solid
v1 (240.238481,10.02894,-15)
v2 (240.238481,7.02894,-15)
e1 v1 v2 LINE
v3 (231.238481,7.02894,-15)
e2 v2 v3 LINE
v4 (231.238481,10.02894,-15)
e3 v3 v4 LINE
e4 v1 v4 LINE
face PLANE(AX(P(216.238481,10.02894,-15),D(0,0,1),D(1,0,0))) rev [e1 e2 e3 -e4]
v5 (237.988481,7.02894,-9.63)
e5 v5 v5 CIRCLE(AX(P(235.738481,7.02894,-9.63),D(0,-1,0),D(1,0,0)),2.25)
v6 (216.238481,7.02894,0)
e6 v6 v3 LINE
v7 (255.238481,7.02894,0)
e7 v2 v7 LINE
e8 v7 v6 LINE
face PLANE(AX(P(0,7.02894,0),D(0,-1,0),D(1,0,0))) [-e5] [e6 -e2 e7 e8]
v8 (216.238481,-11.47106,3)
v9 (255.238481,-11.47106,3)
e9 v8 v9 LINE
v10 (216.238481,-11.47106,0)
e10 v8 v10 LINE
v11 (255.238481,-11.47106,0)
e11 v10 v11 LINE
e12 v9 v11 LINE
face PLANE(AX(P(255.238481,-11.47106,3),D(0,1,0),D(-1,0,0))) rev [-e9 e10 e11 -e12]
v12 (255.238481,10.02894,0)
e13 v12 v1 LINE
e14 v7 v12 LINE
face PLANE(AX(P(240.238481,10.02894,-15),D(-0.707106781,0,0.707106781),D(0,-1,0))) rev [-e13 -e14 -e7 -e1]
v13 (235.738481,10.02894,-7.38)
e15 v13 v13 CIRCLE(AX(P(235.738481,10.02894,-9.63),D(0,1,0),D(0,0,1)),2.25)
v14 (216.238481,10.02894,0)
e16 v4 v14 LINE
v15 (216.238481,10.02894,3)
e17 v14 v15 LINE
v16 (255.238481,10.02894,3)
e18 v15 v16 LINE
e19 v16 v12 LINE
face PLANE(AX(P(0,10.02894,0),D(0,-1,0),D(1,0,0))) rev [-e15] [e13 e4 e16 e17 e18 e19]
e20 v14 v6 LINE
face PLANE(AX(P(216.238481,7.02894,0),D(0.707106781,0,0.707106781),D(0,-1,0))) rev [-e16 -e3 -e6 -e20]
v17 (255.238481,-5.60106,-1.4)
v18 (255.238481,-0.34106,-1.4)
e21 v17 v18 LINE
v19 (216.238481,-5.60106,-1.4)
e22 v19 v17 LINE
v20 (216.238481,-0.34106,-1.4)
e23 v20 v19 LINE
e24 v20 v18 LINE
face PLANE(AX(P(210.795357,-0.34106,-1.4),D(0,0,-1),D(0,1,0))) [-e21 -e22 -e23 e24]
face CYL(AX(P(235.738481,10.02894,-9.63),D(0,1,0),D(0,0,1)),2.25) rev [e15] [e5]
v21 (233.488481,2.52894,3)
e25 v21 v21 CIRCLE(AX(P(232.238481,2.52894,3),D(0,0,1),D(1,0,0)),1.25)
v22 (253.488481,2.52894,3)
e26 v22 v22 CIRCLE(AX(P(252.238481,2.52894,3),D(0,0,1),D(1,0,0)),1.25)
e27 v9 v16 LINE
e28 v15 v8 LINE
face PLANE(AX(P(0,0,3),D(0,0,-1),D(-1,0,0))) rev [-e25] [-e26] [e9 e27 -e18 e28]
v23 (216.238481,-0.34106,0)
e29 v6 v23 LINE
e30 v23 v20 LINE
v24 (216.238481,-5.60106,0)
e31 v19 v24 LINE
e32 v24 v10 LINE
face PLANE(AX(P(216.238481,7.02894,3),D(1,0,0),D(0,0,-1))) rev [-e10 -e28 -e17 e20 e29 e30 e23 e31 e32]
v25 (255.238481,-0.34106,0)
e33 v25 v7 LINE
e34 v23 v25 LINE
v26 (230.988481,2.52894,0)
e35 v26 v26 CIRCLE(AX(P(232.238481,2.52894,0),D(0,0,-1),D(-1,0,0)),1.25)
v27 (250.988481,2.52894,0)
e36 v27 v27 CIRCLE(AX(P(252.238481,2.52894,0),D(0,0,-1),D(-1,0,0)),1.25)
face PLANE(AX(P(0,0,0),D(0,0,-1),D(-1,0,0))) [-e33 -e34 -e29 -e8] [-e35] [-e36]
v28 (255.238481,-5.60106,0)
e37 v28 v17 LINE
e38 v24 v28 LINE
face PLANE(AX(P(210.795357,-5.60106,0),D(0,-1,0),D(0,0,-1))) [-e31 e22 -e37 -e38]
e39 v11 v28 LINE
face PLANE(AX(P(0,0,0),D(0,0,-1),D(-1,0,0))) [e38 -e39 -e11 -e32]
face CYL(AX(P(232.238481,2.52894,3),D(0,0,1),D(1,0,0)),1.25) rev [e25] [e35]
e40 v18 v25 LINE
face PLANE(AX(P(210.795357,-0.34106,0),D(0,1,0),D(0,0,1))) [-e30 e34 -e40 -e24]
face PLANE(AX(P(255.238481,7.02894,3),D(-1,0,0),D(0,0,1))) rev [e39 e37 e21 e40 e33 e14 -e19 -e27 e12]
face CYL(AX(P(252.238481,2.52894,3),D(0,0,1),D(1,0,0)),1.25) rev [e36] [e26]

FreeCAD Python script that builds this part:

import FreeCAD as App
import Part
import Sketcher


def edges_at(feature, points):
    """Names of the edges that pass closest to the given points."""
    edges = feature.Shape.Edges
    near = lambda p: min(range(len(edges)), key=lambda i: edges[i].distToShape(Part.Vertex(*p))[0])
    return sorted({f"Edge{near(p) + 1}" for p in points})

doc = App.newDocument("Part")
body = doc.addObject("PartDesign::Body", "Body")

sketch1 = body.newObject("Sketcher::SketchObject", "Sketch")
sketch1.AttachmentSupport = (doc.getObject("XY_Plane"), [""])
sketch1.MapMode = "FlatFace"
sketch1.addGeometry([
    Part.LineSegment(App.Vector(216, 7, 0), App.Vector(216, -11, 0)),
    Part.LineSegment(App.Vector(216, -11, 0), App.Vector(255, -11, 0)),
    Part.LineSegment(App.Vector(255, -11, 0), App.Vector(255, 7, 0)),
    Part.LineSegment(App.Vector(255, 7, 0), App.Vector(216, 7, 0)),
], False)
sketch1.addConstraint([
    Sketcher.Constraint("Coincident", 0, 2, 1, 1),
    Sketcher.Constraint("Coincident", 1, 2, 2, 1),
    Sketcher.Constraint("Coincident", 2, 2, 3, 1),
    Sketcher.Constraint("Coincident", 3, 2, 0, 1),
    Sketcher.Constraint("Vertical", 0),
    Sketcher.Constraint("Horizontal", 1),
    Sketcher.Constraint("Vertical", 2),
    Sketcher.Constraint("Horizontal", 3),
    Sketcher.Constraint("DistanceX", 1, 1, 1, 2, 39.0),
    Sketcher.Constraint("DistanceY", 0, 2, 0, 1, 18.5),
    Sketcher.Constraint("DistanceX", -1, 1, 0, 2, 216.238481),
    Sketcher.Constraint("DistanceY", 0, 2, -1, 1, 11.47106),
])
pad1 = body.newObject("PartDesign::Pad", "Pad")
pad1.Profile = sketch1
pad1.Length = 3

sketch2 = body.newObject("Sketcher::SketchObject", "Sketch001")
sketch2.AttachmentSupport = (doc.getObject("YZ_Plane"), [""])
sketch2.MapMode = "FlatFace"
sketch2.AttachmentOffset = App.Placement(App.Vector(0, 0, 255.238481), App.Rotation())
sketch2.addGeometry([
    Part.LineSegment(App.Vector(-0.3, 0, 0), App.Vector(-5.6, 0, 0)),
    Part.LineSegment(App.Vector(-5.6, 0, 0), App.Vector(-5.6, -1.4, 0)),
    Part.LineSegment(App.Vector(-5.6, -1.4, 0), App.Vector(-0.3, -1.4, 0)),
    Part.LineSegment(App.Vector(-0.3, -1.4, 0), App.Vector(-0.3, 0, 0)),
], False)
sketch2.addConstraint([
    Sketcher.Constraint("Coincident", 0, 2, 1, 1),
    Sketcher.Constraint("Coincident", 1, 2, 2, 1),
    Sketcher.Constraint("Coincident", 2, 2, 3, 1),
    Sketcher.Constraint("Coincident", 3, 2, 0, 1),
    Sketcher.Constraint("Horizontal", 0),
    Sketcher.Constraint("Vertical", 1),
    Sketcher.Constraint("Horizontal", 2),
    Sketcher.Constraint("Vertical", 3),
    Sketcher.Constraint("PointOnObject", 0, 2, -1),
    Sketcher.Constraint("DistanceY", 1, 2, 1, 1, 1.4),
    Sketcher.Constraint("DistanceX", 0, 2, 0, 1, 5.26),
    Sketcher.Constraint("DistanceX", 0, 2, -1, 1, 5.60106),
])
pad2 = body.newObject("PartDesign::Pad", "Pad001")
pad2.Profile = sketch2
pad2.Length = 39
pad2.Reversed = True

sketch3 = body.newObject("Sketcher::SketchObject", "Sketch002")
sketch3.AttachmentSupport = (doc.getObject("XY_Plane"), [""])
sketch3.MapMode = "FlatFace"
sketch3.AttachmentOffset = App.Placement(App.Vector(0, 0, 3), App.Rotation())
sketch3.addGeometry([
    Part.Circle(App.Vector(232.2, 2.5, 0), App.Vector(0, 0, 1), 1.2),
    Part.Circle(App.Vector(252.2, 2.5, 0), App.Vector(0, 0, 1), 1.2),
], False)
sketch3.addConstraint([
    Sketcher.Constraint("Equal", 0, 1),
    Sketcher.Constraint("Horizontal", 0, 3, 1, 3),
    Sketcher.Constraint("Diameter", 0, 2.5),
    Sketcher.Constraint("DistanceX", 0, 3, 1, 3, 20.0),
    Sketcher.Constraint("DistanceX", -1, 1, 0, 3, 232.238481),
    Sketcher.Constraint("DistanceY", -1, 1, 0, 3, 2.52894),
])
doc.recompute()
hole = body.newObject("PartDesign::Hole", "Hole")
hole.Profile = sketch3
hole.ThreadType = "None"
hole.Diameter = 2.5
hole.DepthType = "Dimension"
hole.Depth = 16
hole.DrillPoint = "Flat"

sketch4 = body.newObject("Sketcher::SketchObject", "Sketch003")
sketch4.AttachmentSupport = (doc.getObject("XZ_Plane"), [""])
sketch4.MapMode = "FlatFace"
sketch4.AttachmentOffset = App.Placement(App.Vector(0, 0, -7.02894), App.Rotation())
sketch4.addGeometry([
    Part.LineSegment(App.Vector(216, -15, 0), App.Vector(216, 3, 0)),
    Part.LineSegment(App.Vector(216, 3, 0), App.Vector(255, 3, 0)),
    Part.LineSegment(App.Vector(255, 3, 0), App.Vector(255, -15, 0)),
    Part.LineSegment(App.Vector(255, -15, 0), App.Vector(216, -15, 0)),
], False)
sketch4.addConstraint([
    Sketcher.Constraint("Coincident", 0, 2, 1, 1),
    Sketcher.Constraint("Coincident", 1, 2, 2, 1),
    Sketcher.Constraint("Coincident", 2, 2, 3, 1),
    Sketcher.Constraint("Coincident", 3, 2, 0, 1),
    Sketcher.Constraint("Vertical", 0),
    Sketcher.Constraint("Horizontal", 1),
    Sketcher.Constraint("Vertical", 2),
    Sketcher.Constraint("Horizontal", 3),
    Sketcher.Constraint("DistanceX", 1, 1, 1, 2, 39.0),
    Sketcher.Constraint("DistanceY", 0, 1, 0, 2, 18.0),
    Sketcher.Constraint("DistanceY", -1, 1, 0, 2, 3.0),
    Sketcher.Constraint("DistanceX", -1, 1, 0, 2, 216.238481),
])
pad3 = body.newObject("PartDesign::Pad", "Pad002")
pad3.Profile = sketch4
pad3.Length = 3
pad3.Reversed = True
doc.recompute()

chamfer = body.newObject("PartDesign::Chamfer", "Chamfer")
chamfer.Base = (pad3, edges_at(pad3, [(216.238, 8.529, -15), (255.238, 8.529, -15)]))
chamfer.Size = 15

sketch5 = body.newObject("Sketcher::SketchObject", "Sketch004")
sketch5.AttachmentSupport = (doc.getObject("XZ_Plane"), [""])
sketch5.MapMode = "FlatFace"
sketch5.AttachmentOffset = App.Placement(App.Vector(0, 0, -10.02894), App.Rotation())
sketch5.addGeometry(Part.Circle(App.Vector(235.7, -9.6, 0), App.Vector(0, 0, 1), 2.2), False)
sketch5.addConstraint([
    Sketcher.Constraint("Diameter", 0, 4.5),
    Sketcher.Constraint("DistanceY", 0, 3, -1, 1, 9.63),
    Sketcher.Constraint("DistanceX", -1, 1, 0, 3, 235.738481),
])
doc.recompute()
hole2 = body.newObject("PartDesign::Hole", "Hole001")
hole2.Profile = sketch5
hole2.ThreadType = "None"
hole2.Diameter = 4.5
hole2.DepthType = "Dimension"
hole2.Depth = 16
hole2.DrillPoint = "Flat"
hole2.Reversed = True

doc.recompute()
